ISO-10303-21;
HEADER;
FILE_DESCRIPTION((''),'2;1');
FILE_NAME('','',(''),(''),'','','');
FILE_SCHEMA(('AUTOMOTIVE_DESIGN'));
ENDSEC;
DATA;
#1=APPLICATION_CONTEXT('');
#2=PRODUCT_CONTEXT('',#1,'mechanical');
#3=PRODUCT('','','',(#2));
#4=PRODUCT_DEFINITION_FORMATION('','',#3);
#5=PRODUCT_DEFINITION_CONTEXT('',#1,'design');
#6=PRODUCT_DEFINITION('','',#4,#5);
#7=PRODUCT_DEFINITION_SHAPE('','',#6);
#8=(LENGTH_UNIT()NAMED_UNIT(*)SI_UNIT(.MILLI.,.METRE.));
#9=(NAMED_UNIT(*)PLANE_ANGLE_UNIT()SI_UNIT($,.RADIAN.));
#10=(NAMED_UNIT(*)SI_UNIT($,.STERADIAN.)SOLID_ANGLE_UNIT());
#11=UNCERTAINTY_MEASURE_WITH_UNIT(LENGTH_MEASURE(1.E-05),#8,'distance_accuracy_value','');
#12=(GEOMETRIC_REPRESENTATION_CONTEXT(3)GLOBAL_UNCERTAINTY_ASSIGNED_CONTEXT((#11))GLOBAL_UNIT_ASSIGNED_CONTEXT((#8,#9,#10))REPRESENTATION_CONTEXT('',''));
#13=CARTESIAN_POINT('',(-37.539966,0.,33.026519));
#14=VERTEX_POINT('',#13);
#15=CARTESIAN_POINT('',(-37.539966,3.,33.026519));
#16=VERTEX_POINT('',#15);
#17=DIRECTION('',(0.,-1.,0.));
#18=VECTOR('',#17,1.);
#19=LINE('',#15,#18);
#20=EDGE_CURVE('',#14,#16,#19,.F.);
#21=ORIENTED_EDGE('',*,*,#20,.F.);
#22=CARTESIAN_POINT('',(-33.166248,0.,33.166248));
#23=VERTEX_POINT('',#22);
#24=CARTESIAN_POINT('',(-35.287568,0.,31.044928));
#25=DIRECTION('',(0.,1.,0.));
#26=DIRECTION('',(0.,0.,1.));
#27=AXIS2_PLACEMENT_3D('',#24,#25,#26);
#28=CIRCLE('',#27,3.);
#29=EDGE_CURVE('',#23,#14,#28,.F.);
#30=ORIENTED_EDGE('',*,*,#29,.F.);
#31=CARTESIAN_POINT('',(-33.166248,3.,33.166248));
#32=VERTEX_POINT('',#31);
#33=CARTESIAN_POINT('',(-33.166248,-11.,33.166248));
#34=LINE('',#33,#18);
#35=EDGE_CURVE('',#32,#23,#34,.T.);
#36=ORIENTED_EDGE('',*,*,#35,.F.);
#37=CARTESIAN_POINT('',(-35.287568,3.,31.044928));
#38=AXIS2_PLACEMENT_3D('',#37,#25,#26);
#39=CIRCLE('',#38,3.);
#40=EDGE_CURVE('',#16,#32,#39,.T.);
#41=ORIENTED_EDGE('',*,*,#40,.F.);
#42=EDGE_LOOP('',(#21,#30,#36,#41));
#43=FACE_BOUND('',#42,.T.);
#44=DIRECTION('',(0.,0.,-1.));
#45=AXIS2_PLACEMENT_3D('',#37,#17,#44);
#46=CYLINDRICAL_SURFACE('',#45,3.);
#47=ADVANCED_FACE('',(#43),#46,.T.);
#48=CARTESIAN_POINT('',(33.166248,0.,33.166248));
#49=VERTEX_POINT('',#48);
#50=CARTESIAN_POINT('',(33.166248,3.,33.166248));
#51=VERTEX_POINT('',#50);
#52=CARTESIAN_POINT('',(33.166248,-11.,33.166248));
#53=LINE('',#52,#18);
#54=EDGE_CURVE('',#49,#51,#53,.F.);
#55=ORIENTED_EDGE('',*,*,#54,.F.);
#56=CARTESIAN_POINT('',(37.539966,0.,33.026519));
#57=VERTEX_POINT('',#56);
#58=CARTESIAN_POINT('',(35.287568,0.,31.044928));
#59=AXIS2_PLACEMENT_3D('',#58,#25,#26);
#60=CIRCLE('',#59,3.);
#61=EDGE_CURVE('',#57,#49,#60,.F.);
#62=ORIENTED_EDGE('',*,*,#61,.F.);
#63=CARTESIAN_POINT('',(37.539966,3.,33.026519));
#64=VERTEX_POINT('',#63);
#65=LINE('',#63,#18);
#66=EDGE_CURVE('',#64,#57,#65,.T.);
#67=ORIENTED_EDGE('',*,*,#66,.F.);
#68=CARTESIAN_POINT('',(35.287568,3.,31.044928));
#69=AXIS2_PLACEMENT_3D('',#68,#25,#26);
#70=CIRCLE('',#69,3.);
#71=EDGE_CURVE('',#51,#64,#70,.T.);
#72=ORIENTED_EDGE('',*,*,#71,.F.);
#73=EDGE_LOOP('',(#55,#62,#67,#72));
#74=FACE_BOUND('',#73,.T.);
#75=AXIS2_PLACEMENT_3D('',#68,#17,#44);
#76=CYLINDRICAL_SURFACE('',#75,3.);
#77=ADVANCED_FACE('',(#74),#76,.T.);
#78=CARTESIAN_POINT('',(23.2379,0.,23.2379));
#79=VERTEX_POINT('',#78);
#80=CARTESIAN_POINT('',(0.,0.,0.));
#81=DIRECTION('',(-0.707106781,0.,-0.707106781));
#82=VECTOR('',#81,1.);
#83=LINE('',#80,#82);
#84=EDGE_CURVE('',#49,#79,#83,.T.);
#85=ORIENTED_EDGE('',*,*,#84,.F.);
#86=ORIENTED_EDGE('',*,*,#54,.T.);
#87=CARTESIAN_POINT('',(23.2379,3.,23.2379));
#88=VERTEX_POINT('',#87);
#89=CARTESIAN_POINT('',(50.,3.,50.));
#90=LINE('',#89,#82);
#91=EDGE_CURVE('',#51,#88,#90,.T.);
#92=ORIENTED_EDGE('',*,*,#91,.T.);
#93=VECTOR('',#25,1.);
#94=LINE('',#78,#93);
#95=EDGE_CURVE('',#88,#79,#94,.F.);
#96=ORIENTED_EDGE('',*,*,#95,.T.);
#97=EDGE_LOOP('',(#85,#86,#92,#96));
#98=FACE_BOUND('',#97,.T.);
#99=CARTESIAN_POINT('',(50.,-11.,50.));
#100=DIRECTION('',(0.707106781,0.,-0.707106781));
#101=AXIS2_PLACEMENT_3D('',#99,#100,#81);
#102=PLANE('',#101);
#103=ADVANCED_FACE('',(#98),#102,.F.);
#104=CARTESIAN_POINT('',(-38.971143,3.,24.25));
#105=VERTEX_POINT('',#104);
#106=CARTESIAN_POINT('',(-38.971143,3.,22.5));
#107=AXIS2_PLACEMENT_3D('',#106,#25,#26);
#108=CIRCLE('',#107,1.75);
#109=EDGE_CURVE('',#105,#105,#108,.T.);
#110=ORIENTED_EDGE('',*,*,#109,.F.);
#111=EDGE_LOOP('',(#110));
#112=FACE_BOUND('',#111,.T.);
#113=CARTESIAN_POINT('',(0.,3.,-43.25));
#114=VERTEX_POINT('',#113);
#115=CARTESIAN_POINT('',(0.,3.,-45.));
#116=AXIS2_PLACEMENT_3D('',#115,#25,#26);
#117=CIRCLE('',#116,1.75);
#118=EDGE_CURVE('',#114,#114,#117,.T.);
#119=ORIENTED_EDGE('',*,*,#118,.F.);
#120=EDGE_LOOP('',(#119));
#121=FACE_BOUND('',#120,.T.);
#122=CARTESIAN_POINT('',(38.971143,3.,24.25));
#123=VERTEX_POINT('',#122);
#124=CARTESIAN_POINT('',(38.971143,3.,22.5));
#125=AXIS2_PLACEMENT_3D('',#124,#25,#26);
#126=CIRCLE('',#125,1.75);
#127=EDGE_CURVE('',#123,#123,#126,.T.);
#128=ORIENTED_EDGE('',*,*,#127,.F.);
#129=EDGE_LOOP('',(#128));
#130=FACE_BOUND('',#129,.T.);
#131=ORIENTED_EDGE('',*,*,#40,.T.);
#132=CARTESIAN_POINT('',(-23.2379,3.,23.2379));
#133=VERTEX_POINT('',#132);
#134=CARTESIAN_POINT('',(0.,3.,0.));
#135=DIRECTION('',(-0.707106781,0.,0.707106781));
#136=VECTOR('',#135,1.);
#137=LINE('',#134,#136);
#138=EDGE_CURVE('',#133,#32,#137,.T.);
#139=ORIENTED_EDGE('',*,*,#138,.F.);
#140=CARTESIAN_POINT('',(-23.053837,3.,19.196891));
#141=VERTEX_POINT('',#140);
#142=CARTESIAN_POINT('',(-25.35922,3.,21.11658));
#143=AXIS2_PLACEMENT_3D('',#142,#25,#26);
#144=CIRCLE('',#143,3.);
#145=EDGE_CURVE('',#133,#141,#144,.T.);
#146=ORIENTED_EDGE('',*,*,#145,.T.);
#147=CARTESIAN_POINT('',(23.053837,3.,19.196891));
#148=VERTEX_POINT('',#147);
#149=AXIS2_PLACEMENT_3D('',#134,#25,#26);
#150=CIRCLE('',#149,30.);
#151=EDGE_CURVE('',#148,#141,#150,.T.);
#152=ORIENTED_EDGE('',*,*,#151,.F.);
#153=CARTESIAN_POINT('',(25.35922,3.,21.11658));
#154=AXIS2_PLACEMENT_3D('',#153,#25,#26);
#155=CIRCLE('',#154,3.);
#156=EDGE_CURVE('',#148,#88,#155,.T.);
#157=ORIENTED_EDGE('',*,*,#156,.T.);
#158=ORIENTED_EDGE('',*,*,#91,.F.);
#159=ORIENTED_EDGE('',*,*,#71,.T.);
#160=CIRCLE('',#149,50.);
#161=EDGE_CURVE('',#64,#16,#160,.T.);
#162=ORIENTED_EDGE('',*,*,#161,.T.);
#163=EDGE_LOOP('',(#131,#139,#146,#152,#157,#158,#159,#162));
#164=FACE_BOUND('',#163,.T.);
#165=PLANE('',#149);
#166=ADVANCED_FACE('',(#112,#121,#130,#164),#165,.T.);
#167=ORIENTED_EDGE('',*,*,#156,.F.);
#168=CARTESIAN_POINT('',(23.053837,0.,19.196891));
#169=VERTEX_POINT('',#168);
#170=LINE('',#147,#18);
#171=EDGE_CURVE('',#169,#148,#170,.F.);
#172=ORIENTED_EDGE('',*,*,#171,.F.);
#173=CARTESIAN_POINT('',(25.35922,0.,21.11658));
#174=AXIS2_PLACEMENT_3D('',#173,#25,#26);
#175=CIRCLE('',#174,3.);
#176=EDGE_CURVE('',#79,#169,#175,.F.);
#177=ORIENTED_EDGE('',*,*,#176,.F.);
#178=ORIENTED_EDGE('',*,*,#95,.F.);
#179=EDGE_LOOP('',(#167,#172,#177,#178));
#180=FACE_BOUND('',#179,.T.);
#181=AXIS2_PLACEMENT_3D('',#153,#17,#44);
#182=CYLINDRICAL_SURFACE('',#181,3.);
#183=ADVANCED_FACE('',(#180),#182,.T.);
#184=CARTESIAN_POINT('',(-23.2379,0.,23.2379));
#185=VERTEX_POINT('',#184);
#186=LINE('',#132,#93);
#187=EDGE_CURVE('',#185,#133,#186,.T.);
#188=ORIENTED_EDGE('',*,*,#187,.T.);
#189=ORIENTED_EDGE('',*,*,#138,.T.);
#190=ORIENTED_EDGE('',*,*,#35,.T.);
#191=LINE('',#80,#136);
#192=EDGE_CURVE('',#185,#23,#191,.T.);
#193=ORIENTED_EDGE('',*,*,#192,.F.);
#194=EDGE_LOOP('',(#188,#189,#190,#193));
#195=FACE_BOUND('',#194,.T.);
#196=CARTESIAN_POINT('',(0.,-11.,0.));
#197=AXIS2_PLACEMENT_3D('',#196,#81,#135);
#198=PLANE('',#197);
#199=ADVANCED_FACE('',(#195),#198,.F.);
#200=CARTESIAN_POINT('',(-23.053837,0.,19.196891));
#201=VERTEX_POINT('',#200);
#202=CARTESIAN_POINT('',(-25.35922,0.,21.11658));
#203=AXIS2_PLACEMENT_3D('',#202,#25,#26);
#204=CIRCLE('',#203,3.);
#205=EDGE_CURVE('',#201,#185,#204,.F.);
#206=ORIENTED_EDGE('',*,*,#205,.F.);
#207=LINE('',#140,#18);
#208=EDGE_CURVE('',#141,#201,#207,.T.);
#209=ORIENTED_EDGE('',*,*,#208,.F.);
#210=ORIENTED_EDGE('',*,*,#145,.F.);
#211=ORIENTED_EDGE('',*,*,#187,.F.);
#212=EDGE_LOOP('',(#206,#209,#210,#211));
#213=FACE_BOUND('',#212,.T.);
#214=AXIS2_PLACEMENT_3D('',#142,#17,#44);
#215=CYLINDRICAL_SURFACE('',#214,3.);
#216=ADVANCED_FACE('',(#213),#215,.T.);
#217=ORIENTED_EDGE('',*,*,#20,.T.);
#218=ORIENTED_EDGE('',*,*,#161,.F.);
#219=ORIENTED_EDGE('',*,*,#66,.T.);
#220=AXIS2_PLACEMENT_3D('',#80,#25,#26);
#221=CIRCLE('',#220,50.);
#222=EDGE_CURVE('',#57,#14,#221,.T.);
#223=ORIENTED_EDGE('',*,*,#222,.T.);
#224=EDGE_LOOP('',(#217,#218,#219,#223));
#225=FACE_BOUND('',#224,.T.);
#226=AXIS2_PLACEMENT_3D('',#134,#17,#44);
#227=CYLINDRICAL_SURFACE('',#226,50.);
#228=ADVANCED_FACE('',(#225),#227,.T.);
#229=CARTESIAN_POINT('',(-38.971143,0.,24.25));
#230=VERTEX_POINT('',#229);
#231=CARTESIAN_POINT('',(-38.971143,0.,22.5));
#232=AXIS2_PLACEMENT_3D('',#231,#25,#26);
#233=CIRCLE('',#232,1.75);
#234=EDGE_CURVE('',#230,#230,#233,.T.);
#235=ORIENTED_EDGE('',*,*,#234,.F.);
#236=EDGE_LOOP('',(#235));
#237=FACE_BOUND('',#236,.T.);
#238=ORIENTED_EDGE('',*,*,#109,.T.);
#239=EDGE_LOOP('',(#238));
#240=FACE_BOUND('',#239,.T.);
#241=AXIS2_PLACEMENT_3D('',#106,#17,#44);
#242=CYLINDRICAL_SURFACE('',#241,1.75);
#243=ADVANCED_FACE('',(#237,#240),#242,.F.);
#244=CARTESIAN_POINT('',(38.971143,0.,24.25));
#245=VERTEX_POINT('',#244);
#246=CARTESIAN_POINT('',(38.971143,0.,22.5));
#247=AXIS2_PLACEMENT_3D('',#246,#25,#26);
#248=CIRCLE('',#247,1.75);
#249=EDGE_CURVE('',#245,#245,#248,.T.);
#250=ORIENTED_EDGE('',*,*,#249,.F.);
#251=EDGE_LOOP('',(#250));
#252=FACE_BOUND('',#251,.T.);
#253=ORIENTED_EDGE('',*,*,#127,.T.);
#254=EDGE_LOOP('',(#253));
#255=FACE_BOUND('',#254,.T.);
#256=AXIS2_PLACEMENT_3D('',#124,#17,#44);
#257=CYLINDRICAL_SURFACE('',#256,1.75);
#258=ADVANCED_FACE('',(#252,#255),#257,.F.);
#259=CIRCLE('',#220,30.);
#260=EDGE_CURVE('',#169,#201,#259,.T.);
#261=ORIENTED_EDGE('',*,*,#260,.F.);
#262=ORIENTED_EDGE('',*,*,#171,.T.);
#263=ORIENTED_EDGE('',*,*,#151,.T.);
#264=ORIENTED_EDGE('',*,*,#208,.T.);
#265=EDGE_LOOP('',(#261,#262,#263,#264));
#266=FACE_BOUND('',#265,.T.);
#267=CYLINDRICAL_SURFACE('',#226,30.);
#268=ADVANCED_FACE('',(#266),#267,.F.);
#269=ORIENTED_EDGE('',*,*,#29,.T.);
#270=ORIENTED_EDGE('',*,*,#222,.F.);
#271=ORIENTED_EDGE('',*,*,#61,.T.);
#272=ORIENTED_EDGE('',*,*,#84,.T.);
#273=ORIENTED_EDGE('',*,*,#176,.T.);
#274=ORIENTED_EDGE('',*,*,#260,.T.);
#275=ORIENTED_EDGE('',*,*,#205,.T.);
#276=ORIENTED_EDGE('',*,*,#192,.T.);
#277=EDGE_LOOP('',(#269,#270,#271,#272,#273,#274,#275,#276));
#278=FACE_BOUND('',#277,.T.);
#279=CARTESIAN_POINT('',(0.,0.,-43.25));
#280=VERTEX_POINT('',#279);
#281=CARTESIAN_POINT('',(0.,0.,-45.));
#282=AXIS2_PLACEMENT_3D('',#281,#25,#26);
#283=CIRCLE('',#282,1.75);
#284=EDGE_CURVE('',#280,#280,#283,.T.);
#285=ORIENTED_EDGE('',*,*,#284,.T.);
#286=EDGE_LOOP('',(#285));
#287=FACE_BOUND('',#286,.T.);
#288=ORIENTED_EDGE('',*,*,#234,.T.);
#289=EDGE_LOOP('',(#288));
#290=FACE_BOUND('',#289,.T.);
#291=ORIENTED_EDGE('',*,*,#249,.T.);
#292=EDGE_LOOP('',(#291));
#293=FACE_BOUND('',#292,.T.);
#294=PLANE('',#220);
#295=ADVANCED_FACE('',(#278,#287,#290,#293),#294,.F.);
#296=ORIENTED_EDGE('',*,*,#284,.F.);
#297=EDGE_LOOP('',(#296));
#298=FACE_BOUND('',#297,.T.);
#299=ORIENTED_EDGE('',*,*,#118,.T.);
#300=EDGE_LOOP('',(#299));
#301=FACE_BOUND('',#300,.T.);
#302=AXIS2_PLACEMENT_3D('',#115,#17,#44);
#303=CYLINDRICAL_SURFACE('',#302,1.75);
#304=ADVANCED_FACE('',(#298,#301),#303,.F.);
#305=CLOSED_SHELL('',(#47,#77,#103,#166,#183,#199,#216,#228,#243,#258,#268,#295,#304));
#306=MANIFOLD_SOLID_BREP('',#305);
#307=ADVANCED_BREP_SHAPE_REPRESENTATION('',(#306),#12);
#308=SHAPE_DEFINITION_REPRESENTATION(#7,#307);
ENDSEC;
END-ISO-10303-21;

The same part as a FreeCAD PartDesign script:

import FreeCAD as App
import Part
import Sketcher

V = App.Vector
Q = App.Units.Quantity


def edges_at(feature, points):
    """Names of the edges that pass closest to the given points."""
    edges = feature.Shape.Edges
    near = lambda p: min(range(len(edges)), key=lambda i: edges[i].distToShape(Part.Vertex(*p))[0])
    return sorted({f"Edge{near(p) + 1}" for p in points})


def add_polygon(sketch, points):
    """Adds a closed chain of lines whose ends are joined by coincident constraints."""
    first, n = sketch.GeometryCount, len(points)
    for a, b in zip(points, points[1:] + points[:1]):
        sketch.addGeometry(Part.LineSegment(App.Vector(*a, 0), App.Vector(*b, 0)), False)
    for i in range(n):
        sketch.addConstraint(Sketcher.Constraint("Coincident", first + i, 2, first + (i + 1) % n, 1))

doc = App.newDocument("Part")
params = doc.addObject("Spreadsheet::Sheet", "Params")
for row, (alias, value) in enumerate([
    ("sketch1_diameter", "100 mm"),
    ("sketch1_diameter2", "60 mm"),
    ("sketch1_diameter3", "3.5 mm"),
    ("pad1_length", "3 mm"),
    ("sketch2_width", "100 mm"),
    ("pocket1_length", "14 mm"),
    ("fillet_radius", "3 mm"),
], start=1):
    params.set(f"A{row}", alias)
    params.set(f"B{row}", "=" + value)
    params.setAlias(f"B{row}", alias)

body = doc.addObject("PartDesign::Body", "Body")

# Sketch on XZ plane
sketch1 = body.newObject("Sketcher::SketchObject", "Sketch")
sketch1.AttachmentSupport = (doc.getObject("XZ_Plane"), [""])
sketch1.MapMode = "FlatFace"
sketch1.addGeometry(Part.Circle(V(0, 0, 0), V(0, 0, 1), 50), False)
sketch1.addGeometry(Part.Circle(V(0, -45, 0), V(0, 0, 1), 1.8), False)
sketch1.addGeometry(Part.Circle(V(-39, 22.5, 0), V(0, 0, 1), 1.8), False)
sketch1.addGeometry(Part.Circle(V(0, 0, 0), V(0, 0, 1), 30), False)
sketch1.addGeometry(Part.Circle(V(39, 22.5, 0), V(0, 0, 1), 1.8), False)
sketch1.addConstraint(Sketcher.Constraint("Coincident", 0, 3, -1, 1))
sketch1.addConstraint(Sketcher.Constraint("Coincident", 3, 3, -1, 1))
sketch1.addConstraint(Sketcher.Constraint("Equal", 1, 2))
sketch1.addConstraint(Sketcher.Constraint("Equal", 2, 4))
sketch1.addConstraint(Sketcher.Constraint("Symmetric", 2, 3, 4, 3, -2))
sketch1.addConstraint(Sketcher.Constraint("PointOnObject", 1, 3, -2))
sketch1.addConstraint(Sketcher.Constraint("Diameter", 0, Q("100 mm")))
sketch1.addConstraint(Sketcher.Constraint("Diameter", 3, Q("60 mm")))
sketch1.addConstraint(Sketcher.Constraint("Diameter", 1, Q("3.5 mm")))
sketch1.addConstraint(Sketcher.Constraint("DistanceY", 1, 3, -1, 1, Q("45 mm")))
sketch1.addConstraint(Sketcher.Constraint("DistanceY", -1, 1, 2, 3, Q("22.5 mm")))
sketch1.addConstraint(Sketcher.Constraint("DistanceX", 2, 3, -1, 1, Q("38.971143 mm")))
sketch1.setExpression("Constraints[6]", "Params.sketch1_diameter")
sketch1.setExpression("Constraints[7]", "Params.sketch1_diameter2")
sketch1.setExpression("Constraints[8]", "Params.sketch1_diameter3")
pad1 = body.newObject("PartDesign::Pad", "Pad")
pad1.Profile = sketch1
pad1.setExpression("Length", "Params.pad1_length")
pad1.Reversed = True

# Sketch on XZ plane
sketch2 = body.newObject("Sketcher::SketchObject", "Sketch001")
sketch2.AttachmentSupport = (doc.getObject("XZ_Plane"), [""])
sketch2.MapMode = "FlatFace"
sketch2.AttachmentOffset = App.Placement(V(0, 0, -3), App.Rotation())
add_polygon(sketch2, [(0, 0), (-50, 50), (50, 50)])  # lines 0-2
sketch2.addConstraint(Sketcher.Constraint("Horizontal", 1))
sketch2.addConstraint(Sketcher.Constraint("Coincident", 2, 2, -1, 1))
sketch2.addConstraint(Sketcher.Constraint("Perpendicular", 0, 2))
sketch2.addConstraint(Sketcher.Constraint("Equal", 0, 2))
sketch2.addConstraint(Sketcher.Constraint("DistanceX", 1, 1, 1, 2, Q("100 mm")))
sketch2.setExpression("Constraints[7]", "Params.sketch2_width")
pocket1 = body.newObject("PartDesign::Pocket", "Pocket")
pocket1.Profile = sketch2
pocket1.setExpression("Length", "Params.pocket1_length")
pocket1.Reversed = True
doc.recompute()

fillet = body.newObject("PartDesign::Fillet", "Fillet")
fillet.Base = (pocket1, edges_at(pocket1, [
    (-21.213, 1.5, 21.213),
    (21.213, 1.5, 21.213),
    (35.355, 1.5, 35.355),
    (-35.355, 1.5, 35.355),
]))
fillet.setExpression("Radius", "Params.fillet_radius")

doc.recompute()
